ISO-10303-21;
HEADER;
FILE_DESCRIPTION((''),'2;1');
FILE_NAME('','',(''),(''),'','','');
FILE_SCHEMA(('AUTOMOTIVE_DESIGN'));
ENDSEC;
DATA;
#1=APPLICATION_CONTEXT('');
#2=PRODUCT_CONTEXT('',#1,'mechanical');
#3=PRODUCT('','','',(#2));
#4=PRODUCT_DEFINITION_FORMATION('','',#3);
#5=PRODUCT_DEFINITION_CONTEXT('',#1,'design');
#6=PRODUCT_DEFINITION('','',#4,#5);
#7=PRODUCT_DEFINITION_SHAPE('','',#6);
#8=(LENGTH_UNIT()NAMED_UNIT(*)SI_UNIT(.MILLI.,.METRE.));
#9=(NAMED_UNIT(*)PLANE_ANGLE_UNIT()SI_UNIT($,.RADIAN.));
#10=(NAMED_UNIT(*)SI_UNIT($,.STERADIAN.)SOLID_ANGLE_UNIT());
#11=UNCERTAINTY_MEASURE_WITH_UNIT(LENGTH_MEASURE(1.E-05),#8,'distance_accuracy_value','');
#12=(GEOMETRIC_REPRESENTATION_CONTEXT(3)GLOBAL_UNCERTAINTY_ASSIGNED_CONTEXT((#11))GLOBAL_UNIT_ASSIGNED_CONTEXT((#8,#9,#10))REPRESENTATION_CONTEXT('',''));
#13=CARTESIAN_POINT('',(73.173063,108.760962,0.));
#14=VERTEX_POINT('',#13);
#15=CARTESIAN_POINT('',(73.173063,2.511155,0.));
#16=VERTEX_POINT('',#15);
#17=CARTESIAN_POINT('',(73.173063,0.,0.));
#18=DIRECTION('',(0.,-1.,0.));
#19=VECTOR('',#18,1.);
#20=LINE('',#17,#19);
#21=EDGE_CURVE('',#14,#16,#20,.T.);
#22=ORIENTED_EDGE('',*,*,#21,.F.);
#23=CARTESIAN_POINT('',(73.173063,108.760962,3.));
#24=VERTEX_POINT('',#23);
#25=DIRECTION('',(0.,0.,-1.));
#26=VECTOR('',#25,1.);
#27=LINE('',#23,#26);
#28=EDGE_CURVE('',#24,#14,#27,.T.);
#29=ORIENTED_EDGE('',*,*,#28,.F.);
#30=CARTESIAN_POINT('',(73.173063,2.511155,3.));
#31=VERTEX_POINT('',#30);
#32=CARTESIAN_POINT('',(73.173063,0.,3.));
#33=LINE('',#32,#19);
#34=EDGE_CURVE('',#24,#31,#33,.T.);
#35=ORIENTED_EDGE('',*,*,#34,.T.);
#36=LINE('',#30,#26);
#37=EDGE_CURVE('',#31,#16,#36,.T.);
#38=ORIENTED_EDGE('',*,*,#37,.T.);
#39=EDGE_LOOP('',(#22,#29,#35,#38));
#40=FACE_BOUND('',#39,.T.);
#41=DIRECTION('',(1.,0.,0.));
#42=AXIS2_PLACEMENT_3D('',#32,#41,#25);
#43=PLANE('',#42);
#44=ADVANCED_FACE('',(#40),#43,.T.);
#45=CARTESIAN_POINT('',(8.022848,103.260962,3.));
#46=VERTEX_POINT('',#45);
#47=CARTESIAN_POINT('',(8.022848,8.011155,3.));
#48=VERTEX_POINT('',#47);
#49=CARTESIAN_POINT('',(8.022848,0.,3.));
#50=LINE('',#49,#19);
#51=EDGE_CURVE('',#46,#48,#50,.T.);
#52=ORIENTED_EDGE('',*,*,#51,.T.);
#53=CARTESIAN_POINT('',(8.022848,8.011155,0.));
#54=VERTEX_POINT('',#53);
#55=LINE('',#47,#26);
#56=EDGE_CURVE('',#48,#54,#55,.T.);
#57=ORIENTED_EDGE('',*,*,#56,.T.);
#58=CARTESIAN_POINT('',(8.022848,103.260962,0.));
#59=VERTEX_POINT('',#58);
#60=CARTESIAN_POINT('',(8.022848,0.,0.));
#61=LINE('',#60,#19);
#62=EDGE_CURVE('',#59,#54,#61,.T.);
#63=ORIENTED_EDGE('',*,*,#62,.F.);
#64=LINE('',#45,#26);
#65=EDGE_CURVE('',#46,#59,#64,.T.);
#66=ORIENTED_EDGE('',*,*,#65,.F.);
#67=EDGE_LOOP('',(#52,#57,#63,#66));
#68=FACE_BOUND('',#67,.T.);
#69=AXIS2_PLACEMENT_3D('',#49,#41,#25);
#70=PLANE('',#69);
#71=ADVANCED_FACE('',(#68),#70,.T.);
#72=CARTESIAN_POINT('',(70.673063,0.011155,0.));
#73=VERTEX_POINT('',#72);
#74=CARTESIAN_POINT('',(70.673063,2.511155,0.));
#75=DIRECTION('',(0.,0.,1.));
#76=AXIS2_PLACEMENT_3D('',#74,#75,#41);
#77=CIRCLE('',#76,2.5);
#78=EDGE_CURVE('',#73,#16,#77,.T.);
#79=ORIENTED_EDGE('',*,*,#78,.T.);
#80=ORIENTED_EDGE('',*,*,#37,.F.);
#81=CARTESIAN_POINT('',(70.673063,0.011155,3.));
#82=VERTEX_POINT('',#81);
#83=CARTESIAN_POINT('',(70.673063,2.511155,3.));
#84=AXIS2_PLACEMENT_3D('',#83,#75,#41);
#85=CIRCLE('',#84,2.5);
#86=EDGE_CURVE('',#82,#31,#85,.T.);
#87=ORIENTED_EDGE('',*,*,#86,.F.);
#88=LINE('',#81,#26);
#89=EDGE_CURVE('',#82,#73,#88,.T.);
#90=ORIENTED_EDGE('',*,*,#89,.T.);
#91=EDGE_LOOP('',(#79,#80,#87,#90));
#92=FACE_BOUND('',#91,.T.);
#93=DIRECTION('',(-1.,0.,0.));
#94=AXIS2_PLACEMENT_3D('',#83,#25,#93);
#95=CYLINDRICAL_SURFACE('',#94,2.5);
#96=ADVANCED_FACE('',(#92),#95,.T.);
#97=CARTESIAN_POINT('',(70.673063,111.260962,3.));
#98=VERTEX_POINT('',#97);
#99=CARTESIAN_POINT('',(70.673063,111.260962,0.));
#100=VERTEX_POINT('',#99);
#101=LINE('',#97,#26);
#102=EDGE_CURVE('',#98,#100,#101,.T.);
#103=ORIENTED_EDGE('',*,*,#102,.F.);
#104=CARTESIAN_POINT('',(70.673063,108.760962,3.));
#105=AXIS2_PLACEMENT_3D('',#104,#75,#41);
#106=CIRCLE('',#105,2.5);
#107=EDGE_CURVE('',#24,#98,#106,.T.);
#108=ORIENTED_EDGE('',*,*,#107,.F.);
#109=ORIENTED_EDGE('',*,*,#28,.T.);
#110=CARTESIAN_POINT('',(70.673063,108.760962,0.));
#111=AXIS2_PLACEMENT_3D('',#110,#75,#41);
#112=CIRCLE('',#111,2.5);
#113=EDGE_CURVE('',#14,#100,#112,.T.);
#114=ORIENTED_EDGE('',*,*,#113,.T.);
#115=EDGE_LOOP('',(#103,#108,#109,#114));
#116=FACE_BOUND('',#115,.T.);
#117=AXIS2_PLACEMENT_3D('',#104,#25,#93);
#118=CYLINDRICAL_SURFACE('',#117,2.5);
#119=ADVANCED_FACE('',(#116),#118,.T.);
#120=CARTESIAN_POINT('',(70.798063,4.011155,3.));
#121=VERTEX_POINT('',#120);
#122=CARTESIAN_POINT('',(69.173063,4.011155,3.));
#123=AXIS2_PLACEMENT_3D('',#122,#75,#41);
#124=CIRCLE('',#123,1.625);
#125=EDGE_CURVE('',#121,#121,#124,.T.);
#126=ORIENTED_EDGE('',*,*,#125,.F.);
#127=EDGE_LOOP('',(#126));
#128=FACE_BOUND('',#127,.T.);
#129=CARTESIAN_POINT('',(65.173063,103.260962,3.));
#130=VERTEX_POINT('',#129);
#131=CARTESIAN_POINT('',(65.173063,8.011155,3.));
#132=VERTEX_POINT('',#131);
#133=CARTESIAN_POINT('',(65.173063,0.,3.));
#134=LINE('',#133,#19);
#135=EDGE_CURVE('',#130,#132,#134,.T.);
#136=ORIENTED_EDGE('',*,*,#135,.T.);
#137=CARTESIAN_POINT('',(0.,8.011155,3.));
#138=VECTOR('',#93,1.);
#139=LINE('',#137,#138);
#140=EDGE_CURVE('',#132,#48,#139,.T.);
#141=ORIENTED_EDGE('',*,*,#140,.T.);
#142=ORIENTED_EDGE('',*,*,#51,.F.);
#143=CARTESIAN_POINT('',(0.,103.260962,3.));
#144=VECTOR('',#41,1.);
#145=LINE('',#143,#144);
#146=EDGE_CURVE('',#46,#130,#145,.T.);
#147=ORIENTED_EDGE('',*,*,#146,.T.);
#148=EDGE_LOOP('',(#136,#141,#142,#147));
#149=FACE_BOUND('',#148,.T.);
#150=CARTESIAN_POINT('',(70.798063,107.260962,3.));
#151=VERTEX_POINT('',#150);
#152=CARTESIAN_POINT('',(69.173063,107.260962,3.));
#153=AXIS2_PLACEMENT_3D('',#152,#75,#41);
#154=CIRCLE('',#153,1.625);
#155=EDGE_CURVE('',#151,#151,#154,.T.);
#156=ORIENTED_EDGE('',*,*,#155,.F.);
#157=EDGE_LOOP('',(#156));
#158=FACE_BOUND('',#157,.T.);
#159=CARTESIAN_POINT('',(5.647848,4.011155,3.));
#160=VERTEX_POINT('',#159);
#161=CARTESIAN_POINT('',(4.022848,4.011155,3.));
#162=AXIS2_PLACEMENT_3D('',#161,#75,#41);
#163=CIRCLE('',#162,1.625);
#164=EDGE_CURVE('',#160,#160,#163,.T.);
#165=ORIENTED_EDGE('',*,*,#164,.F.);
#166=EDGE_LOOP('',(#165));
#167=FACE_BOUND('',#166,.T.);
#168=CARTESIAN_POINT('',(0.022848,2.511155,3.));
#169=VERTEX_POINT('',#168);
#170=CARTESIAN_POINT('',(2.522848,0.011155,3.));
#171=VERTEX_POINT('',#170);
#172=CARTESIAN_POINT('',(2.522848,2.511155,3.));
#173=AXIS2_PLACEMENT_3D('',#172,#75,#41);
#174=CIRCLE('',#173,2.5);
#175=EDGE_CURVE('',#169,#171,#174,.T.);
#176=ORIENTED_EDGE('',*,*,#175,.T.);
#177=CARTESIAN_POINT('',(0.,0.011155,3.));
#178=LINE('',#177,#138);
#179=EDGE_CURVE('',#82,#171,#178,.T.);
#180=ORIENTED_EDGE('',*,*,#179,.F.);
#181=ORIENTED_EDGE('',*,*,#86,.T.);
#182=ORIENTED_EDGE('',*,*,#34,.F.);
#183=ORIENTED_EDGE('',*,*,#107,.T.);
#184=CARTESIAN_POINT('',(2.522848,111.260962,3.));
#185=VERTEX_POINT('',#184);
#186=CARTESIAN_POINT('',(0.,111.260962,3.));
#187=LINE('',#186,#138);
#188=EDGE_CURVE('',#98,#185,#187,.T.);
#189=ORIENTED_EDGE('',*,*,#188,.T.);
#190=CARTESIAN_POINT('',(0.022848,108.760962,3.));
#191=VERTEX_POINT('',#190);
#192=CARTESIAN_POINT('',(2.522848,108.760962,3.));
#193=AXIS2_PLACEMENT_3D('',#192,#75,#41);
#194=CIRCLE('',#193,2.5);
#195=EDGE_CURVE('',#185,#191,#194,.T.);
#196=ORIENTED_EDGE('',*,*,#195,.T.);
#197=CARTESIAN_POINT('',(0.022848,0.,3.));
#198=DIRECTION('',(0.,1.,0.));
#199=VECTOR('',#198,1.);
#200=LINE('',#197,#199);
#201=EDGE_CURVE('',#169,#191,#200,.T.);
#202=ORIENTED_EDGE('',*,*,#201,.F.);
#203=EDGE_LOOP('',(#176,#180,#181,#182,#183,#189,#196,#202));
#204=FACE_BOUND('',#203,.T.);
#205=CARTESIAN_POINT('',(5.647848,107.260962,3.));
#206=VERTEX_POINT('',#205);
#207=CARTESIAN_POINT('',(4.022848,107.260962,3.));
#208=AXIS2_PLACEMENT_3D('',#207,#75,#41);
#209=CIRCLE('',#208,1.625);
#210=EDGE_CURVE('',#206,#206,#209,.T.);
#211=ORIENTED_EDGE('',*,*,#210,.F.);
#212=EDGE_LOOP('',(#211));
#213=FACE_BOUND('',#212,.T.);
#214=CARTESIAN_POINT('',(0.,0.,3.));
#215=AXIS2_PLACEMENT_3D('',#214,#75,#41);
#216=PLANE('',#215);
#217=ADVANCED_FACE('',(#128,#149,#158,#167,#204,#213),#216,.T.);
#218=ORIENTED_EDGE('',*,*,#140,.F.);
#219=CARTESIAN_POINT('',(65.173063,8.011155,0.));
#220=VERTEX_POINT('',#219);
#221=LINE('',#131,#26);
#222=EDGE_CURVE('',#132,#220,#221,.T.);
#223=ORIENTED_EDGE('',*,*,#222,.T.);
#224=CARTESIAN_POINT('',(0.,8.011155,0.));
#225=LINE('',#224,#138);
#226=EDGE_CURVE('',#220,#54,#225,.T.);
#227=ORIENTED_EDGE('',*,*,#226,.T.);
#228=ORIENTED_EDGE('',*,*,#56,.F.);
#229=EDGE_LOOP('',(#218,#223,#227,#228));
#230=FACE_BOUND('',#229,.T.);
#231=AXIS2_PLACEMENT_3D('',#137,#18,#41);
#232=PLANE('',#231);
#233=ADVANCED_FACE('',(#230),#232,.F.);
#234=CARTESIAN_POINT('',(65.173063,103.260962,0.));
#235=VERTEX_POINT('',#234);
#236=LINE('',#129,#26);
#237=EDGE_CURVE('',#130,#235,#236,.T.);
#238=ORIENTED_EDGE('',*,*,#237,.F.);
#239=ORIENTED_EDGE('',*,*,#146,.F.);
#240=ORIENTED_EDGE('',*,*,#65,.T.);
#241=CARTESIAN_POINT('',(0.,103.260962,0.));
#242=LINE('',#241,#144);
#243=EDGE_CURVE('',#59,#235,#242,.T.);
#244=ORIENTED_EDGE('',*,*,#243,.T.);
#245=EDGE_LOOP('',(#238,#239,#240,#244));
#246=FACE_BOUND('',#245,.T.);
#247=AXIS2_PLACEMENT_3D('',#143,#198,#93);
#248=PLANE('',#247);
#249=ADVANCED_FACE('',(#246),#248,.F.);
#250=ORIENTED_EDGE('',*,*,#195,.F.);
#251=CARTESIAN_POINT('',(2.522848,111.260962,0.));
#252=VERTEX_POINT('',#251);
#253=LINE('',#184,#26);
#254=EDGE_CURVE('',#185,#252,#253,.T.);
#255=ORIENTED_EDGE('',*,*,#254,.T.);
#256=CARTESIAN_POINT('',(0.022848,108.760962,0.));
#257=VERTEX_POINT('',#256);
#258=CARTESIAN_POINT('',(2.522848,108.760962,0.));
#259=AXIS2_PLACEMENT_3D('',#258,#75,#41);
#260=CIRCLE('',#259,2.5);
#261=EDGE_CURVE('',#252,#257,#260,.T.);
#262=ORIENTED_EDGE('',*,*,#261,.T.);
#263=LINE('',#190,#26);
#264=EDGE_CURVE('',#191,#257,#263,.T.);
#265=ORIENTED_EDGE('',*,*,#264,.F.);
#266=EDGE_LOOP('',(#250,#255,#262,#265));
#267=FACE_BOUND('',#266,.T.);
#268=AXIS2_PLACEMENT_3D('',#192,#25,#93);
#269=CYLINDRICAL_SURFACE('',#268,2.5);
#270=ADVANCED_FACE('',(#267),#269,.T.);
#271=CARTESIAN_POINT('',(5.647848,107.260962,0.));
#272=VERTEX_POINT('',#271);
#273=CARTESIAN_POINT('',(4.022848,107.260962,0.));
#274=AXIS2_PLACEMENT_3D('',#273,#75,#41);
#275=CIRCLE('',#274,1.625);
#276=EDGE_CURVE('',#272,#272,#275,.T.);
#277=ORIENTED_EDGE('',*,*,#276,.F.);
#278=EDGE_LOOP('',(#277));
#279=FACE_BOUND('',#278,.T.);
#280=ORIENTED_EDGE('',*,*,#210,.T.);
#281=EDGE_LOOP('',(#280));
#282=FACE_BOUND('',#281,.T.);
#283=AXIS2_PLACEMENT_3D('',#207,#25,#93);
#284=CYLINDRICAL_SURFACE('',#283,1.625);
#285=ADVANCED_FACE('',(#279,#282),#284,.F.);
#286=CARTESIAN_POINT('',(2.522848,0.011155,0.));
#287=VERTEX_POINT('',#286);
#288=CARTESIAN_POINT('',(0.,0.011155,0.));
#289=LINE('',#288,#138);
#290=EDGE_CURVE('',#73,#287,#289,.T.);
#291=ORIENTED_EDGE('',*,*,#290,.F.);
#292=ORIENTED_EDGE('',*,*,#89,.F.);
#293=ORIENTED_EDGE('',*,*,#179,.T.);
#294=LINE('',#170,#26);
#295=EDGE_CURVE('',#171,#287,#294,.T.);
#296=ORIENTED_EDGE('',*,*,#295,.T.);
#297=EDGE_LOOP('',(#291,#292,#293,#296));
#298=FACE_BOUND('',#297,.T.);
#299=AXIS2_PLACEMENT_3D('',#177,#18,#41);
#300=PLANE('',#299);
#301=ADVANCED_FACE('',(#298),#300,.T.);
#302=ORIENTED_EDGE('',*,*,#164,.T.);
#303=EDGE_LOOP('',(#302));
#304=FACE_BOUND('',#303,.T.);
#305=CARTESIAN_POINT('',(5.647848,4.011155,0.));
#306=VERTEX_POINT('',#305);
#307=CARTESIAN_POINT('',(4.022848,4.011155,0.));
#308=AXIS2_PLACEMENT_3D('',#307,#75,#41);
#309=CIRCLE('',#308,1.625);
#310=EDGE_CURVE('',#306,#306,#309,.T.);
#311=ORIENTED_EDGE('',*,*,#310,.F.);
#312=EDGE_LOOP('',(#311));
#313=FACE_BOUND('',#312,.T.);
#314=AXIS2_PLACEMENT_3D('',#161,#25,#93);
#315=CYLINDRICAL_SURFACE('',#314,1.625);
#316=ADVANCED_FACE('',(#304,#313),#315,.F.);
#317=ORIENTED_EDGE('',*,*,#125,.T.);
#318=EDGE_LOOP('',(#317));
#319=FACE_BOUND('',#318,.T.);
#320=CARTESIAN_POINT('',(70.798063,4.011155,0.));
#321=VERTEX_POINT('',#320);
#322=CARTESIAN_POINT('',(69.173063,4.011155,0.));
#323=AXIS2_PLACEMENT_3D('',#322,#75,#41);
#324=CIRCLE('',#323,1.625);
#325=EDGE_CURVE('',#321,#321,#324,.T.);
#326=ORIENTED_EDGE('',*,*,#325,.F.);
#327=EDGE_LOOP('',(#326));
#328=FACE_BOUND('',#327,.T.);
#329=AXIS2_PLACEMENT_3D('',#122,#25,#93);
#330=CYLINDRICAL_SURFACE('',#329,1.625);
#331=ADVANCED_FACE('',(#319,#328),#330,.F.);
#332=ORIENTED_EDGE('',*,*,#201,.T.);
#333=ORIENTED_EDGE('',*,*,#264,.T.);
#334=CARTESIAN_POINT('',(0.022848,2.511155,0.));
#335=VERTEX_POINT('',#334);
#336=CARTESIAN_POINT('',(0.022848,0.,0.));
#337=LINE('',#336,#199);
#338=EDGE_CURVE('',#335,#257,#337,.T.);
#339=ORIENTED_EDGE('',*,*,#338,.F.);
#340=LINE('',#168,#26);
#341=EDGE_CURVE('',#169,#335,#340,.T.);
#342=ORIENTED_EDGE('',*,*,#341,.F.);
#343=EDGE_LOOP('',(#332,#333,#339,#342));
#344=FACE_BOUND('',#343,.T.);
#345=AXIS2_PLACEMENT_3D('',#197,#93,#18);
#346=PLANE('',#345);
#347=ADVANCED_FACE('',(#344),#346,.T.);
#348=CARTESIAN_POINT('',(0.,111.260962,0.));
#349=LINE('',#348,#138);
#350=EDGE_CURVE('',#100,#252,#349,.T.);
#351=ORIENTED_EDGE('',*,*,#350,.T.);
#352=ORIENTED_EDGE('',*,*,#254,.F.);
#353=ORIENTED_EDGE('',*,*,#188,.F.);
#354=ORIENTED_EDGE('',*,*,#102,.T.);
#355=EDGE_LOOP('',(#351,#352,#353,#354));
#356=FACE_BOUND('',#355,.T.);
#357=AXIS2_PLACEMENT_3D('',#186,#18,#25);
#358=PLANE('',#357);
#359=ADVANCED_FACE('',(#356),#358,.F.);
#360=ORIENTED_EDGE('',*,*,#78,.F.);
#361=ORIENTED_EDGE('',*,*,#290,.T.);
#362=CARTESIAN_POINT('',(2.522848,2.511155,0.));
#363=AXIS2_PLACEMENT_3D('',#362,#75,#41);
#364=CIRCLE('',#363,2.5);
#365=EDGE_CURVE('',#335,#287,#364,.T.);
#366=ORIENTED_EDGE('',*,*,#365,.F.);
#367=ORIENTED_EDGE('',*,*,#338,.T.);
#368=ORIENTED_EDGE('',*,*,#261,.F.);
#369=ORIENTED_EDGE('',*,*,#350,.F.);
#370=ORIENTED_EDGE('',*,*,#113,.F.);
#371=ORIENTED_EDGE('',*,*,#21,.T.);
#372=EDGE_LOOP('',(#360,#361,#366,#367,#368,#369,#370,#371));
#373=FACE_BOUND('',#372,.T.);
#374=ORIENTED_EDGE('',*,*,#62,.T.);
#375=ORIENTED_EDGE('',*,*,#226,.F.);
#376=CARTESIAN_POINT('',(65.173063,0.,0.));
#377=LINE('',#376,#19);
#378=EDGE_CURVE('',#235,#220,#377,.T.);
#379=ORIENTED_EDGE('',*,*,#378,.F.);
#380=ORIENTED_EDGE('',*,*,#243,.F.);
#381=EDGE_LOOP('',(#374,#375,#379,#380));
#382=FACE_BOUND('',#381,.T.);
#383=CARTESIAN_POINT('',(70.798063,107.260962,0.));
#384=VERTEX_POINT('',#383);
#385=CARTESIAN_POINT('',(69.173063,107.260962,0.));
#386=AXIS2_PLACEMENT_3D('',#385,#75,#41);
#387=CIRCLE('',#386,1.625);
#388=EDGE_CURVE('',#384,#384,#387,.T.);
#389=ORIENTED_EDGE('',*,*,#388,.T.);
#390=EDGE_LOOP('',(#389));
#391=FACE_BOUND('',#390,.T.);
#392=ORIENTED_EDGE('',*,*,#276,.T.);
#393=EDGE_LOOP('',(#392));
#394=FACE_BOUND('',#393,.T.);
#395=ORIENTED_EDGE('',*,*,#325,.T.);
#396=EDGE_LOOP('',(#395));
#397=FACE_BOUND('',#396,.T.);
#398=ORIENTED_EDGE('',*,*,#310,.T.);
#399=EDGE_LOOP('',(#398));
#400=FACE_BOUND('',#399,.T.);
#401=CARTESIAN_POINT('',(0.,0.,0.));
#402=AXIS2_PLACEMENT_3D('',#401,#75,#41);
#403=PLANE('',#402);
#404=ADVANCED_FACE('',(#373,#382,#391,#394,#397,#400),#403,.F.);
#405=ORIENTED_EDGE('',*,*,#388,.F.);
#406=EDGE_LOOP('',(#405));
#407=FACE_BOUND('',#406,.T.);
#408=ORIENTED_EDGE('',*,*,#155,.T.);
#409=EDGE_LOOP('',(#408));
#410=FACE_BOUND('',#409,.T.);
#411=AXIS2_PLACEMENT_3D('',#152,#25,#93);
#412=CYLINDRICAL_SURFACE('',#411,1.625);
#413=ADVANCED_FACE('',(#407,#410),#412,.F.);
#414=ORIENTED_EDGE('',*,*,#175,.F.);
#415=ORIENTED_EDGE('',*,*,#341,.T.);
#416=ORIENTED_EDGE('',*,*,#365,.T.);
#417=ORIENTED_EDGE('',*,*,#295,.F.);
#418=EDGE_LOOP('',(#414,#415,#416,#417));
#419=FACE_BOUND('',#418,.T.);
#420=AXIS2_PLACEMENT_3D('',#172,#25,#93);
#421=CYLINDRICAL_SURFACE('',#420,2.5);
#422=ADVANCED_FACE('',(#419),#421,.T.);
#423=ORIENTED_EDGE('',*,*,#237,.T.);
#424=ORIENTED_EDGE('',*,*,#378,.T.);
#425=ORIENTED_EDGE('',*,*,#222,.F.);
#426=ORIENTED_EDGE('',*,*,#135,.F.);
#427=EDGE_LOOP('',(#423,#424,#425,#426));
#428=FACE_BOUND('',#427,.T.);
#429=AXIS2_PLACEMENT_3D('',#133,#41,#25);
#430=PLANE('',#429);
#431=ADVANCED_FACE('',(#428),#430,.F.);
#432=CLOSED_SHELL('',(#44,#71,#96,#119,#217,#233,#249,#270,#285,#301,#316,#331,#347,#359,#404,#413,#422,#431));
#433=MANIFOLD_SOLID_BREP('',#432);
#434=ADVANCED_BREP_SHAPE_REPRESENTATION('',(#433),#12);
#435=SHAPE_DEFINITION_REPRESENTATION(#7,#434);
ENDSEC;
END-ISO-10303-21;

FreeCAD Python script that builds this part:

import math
import FreeCAD as App
import Part
import Sketcher


def add_polygon(sketch, points):
    """Adds a closed chain of lines whose ends are joined by coincident constraints."""
    first, n = sketch.GeometryCount, len(points)
    for a, b in zip(points, points[1:] + points[:1]):
        sketch.addGeometry(Part.LineSegment(App.Vector(*a, 0), App.Vector(*b, 0)), False)
    for i in range(n):
        sketch.addConstraint(Sketcher.Constraint("Coincident", first + i, 2, first + (i + 1) % n, 1))

doc = App.newDocument("Part")
body = doc.addObject("PartDesign::Body", "Body")

# Sketch on XY plane
sketch1 = body.newObject("Sketcher::SketchObject", "Sketch")
sketch1.AttachmentSupport = (doc.getObject("XY_Plane"), [""])
sketch1.MapMode = "FlatFace"
sketch1.addGeometry(Part.ArcOfCircle(Part.Circle(App.Vector(2.522848, 108.760962, 0), App.Vector(0, 0, 1), 2.5), math.radians(90), math.radians(180)), False)  # 0
sketch1.addGeometry(Part.LineSegment(App.Vector(0.022848, 108.760962, 0), App.Vector(0.022848, 2.511155, 0)), False)  # 1
sketch1.addGeometry(Part.ArcOfCircle(Part.Circle(App.Vector(2.522848, 2.511155, 0), App.Vector(0, 0, 1), 2.5), math.radians(180), math.radians(270)), False)  # 2
sketch1.addGeometry(Part.LineSegment(App.Vector(2.522848, 0.011155, 0), App.Vector(70.673063, 0.011155, 0)), False)  # 3
sketch1.addGeometry(Part.ArcOfCircle(Part.Circle(App.Vector(70.673063, 2.511155, 0), App.Vector(0, 0, 1), 2.5), math.radians(-90), math.radians(0)), False)  # 4
sketch1.addGeometry(Part.LineSegment(App.Vector(73.173063, 2.511155, 0), App.Vector(73.173063, 108.760962, 0)), False)  # 5
sketch1.addGeometry(Part.ArcOfCircle(Part.Circle(App.Vector(70.673063, 108.760962, 0), App.Vector(0, 0, 1), 2.5), math.radians(0), math.radians(90)), False)  # 6
sketch1.addGeometry(Part.LineSegment(App.Vector(70.673063, 111.260962, 0), App.Vector(2.522848, 111.260962, 0)), False)  # 7
sketch1.addGeometry(Part.Circle(App.Vector(4.022848, 4.011155, 0), App.Vector(0, 0, 1), 1.625), False)  # 8
sketch1.addGeometry(Part.Circle(App.Vector(69.173063, 4.011155, 0), App.Vector(0, 0, 1), 1.625), False)  # 9
add_polygon(sketch1, [(65.173063, 8.011155), (8.022848, 8.011155), (8.022848, 103.260962), (65.173063, 103.260962)])  # lines 10-13
sketch1.addGeometry(Part.Circle(App.Vector(4.022848, 107.260962, 0), App.Vector(0, 0, 1), 1.625), False)  # 14
sketch1.addGeometry(Part.Circle(App.Vector(69.173063, 107.260962, 0), App.Vector(0, 0, 1), 1.625), False)  # 15
sketch1.addConstraint(Sketcher.Constraint("Tangent", 0, 2, 1, 1))
sketch1.addConstraint(Sketcher.Constraint("Tangent", 1, 2, 2, 1))
sketch1.addConstraint(Sketcher.Constraint("Tangent", 2, 2, 3, 1))
sketch1.addConstraint(Sketcher.Constraint("Tangent", 3, 2, 4, 1))
sketch1.addConstraint(Sketcher.Constraint("Tangent", 4, 2, 5, 1))
sketch1.addConstraint(Sketcher.Constraint("Tangent", 5, 2, 6, 1))
sketch1.addConstraint(Sketcher.Constraint("Tangent", 6, 2, 7, 1))
sketch1.addConstraint(Sketcher.Constraint("Tangent", 7, 2, 0, 1))
sketch1.addConstraint(Sketcher.Constraint("Vertical", 1))
sketch1.addConstraint(Sketcher.Constraint("Horizontal", 3))
sketch1.addConstraint(Sketcher.Constraint("Vertical", 5))
sketch1.addConstraint(Sketcher.Constraint("Horizontal", 7))
sketch1.addConstraint(Sketcher.Constraint("Horizontal", 10))
sketch1.addConstraint(Sketcher.Constraint("Vertical", 11))
sketch1.addConstraint(Sketcher.Constraint("Horizontal", 12))
sketch1.addConstraint(Sketcher.Constraint("Vertical", 13))
sketch1.addConstraint(Sketcher.Constraint("Equal", 0, 2))
sketch1.addConstraint(Sketcher.Constraint("Equal", 2, 4))
sketch1.addConstraint(Sketcher.Constraint("Equal", 4, 6))
sketch1.addConstraint(Sketcher.Constraint("Equal", 8, 9))
sketch1.addConstraint(Sketcher.Constraint("Equal", 9, 14))
sketch1.addConstraint(Sketcher.Constraint("Equal", 14, 15))
sketch1.addConstraint(Sketcher.Constraint("Horizontal", 8, 3, 9, 3))
sketch1.addConstraint(Sketcher.Constraint("Horizontal", 14, 3, 15, 3))
sketch1.addConstraint(Sketcher.Constraint("Vertical", 8, 3, 14, 3))
sketch1.addConstraint(Sketcher.Constraint("Vertical", 9, 3, 15, 3))
sketch1.addConstraint(Sketcher.Constraint("Radius", 0, 2.5))
sketch1.addConstraint(Sketcher.Constraint("Diameter", 8, 3.25))
sketch1.addConstraint(Sketcher.Constraint("DistanceX", 0, 2, 14, 3, 4.0))
sketch1.addConstraint(Sketcher.Constraint("DistanceY", 2, 2, 8, 3, 4.0))
sketch1.addConstraint(Sketcher.Constraint("DistanceX", 9, 3, 4, 2, 4.0))
sketch1.addConstraint(Sketcher.Constraint("DistanceY", 15, 3, 6, 2, 4.0))
sketch1.addConstraint(Sketcher.Constraint("DistanceX", 8, 3, 10, 2, 4.0))
sketch1.addConstraint(Sketcher.Constraint("DistanceY", 8, 3, 10, 2, 4.0))
sketch1.addConstraint(Sketcher.Constraint("DistanceY", 11, 2, 14, 3, 4.0))
sketch1.addConstraint(Sketcher.Constraint("DistanceX", 12, 2, 15, 3, 4.0))
sketch1.addConstraint(Sketcher.Constraint("DistanceX", 3, 1, 3, 2, 68.150215))
sketch1.addConstraint(Sketcher.Constraint("DistanceY", 1, 2, 1, 1, 106.249807))
sketch1.addConstraint(Sketcher.Constraint("DistanceY", -1, 1, 0, 3, 108.760962))
sketch1.addConstraint(Sketcher.Constraint("DistanceX", -1, 1, 0, 3, 2.522848))
pad1 = body.newObject("PartDesign::Pad", "Pad")
pad1.Profile = sketch1
pad1.Length = 3

doc.recompute()
